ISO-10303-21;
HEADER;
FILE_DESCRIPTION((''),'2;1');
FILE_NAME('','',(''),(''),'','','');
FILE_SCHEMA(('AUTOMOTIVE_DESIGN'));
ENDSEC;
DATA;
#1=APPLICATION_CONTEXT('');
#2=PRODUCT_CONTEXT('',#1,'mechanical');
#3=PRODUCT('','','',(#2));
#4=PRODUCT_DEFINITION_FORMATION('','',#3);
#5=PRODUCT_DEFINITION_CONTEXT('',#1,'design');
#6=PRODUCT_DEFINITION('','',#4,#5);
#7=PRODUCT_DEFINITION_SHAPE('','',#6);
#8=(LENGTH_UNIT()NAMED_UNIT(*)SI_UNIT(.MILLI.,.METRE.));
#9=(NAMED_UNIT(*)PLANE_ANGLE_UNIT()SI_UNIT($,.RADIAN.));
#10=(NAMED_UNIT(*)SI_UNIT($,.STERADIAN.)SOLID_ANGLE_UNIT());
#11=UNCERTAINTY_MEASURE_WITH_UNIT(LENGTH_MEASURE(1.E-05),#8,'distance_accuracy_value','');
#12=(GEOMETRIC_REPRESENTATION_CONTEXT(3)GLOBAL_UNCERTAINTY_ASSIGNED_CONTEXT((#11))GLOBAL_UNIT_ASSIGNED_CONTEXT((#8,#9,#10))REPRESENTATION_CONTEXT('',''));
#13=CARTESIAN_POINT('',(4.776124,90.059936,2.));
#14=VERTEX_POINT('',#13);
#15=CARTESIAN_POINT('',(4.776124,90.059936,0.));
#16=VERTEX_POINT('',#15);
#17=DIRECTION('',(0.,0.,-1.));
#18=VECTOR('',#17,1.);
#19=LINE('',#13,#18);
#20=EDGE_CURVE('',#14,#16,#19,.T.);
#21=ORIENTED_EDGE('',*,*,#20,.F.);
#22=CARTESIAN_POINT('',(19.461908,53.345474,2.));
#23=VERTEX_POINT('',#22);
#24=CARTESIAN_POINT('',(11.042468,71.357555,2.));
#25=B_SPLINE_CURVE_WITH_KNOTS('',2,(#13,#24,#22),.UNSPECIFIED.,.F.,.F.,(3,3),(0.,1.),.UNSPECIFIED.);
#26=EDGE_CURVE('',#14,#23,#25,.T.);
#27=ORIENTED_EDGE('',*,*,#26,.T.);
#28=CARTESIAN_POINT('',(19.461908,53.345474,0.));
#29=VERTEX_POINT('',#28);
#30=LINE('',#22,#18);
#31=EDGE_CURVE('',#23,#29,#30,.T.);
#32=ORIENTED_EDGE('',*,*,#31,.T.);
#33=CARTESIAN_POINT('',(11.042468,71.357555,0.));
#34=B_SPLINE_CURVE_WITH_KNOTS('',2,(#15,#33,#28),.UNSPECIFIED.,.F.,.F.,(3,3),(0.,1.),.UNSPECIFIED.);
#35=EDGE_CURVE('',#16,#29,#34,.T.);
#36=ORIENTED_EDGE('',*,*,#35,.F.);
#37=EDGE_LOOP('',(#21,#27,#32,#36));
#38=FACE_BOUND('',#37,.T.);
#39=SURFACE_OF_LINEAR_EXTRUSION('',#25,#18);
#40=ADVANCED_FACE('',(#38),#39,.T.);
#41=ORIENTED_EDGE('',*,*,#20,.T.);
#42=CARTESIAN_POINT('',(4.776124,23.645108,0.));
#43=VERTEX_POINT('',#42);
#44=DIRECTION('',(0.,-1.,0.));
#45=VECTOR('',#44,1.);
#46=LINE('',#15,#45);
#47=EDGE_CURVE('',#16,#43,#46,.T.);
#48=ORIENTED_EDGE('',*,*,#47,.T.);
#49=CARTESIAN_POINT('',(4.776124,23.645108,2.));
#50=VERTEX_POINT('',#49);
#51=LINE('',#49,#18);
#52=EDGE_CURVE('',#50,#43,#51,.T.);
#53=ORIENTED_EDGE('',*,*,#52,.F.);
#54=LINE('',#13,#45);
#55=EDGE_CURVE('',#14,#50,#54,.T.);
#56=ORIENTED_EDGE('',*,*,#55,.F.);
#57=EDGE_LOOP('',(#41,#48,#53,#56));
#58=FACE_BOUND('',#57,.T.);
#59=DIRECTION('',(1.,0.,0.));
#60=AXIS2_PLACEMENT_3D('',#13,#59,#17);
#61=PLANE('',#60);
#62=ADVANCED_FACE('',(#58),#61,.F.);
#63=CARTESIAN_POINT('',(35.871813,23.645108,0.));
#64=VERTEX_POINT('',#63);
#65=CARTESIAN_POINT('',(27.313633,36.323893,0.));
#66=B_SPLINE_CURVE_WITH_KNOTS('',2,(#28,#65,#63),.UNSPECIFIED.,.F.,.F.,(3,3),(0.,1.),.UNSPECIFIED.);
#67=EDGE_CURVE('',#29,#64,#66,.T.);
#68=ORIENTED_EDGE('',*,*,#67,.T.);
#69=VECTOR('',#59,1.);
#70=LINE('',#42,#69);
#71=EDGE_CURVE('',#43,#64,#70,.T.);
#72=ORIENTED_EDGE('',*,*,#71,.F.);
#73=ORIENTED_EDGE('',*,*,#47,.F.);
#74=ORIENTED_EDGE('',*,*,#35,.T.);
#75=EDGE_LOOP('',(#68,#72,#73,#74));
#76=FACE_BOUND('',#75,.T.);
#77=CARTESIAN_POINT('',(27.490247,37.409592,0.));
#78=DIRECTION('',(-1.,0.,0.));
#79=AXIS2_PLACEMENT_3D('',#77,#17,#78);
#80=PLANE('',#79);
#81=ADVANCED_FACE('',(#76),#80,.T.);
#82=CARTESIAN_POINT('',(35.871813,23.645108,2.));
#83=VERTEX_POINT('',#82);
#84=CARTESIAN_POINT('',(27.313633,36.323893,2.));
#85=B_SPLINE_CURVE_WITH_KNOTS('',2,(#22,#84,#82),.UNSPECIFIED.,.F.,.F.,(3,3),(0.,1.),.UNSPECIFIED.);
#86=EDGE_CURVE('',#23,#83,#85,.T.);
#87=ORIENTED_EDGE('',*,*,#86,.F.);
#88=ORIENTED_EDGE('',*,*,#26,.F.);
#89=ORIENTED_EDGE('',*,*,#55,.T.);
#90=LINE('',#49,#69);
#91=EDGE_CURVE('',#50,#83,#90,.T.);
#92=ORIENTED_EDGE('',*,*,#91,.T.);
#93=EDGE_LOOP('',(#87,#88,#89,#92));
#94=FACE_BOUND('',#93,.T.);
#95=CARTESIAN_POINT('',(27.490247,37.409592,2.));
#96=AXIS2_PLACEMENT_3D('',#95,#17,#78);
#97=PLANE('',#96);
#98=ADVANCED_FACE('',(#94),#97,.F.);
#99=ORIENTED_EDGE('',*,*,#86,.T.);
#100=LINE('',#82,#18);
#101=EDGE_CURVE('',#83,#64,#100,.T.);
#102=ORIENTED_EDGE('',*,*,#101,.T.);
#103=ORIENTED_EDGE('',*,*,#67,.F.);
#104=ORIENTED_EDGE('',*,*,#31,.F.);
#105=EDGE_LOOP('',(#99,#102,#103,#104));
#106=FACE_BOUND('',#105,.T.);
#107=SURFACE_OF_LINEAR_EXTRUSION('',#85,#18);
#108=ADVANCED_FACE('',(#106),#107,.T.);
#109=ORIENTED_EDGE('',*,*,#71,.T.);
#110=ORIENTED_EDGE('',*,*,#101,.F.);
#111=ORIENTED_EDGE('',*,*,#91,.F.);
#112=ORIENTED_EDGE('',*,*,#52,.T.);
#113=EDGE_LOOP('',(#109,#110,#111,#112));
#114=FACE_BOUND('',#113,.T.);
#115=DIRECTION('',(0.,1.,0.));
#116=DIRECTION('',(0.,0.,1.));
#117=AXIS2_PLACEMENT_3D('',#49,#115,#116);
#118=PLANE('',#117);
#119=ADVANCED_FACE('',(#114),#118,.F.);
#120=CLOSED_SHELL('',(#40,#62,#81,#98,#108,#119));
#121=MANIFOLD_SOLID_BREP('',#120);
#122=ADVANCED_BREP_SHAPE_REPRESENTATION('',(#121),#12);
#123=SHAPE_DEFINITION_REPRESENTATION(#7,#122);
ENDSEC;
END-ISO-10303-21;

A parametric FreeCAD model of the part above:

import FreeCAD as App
import Part
import Sketcher

V = App.Vector

doc = App.newDocument("Part")
body = doc.addObject("PartDesign::Body", "Body")

# Sketch on XY plane
sketch1 = doc.addObject("Sketcher::SketchObject", "Sketch")
body.addObject(sketch1)
sketch1.AttachmentSupport = (doc.XY_Plane, [""])
sketch1.MapMode = "FlatFace"
sketch1.addGeometry([
    Part.LineSegment(V(4.776124, 90.059936, 0), V(4.776124, 23.645108, 0)),
    Part.LineSegment(V(4.776124, 23.645108, 0), V(35.871813, 23.645108, 0)),
    Part.BSplineCurve([V(19.461908, 53.345474, 0), V(27.313633, 36.323893, 0), V(35.871813, 23.645108, 0)], [3, 3], [0, 1], False, 2, [1, 1, 1], False),
    Part.BSplineCurve([V(4.776124, 90.059936, 0), V(11.042468, 71.357555, 0), V(19.461908, 53.345474, 0)], [3, 3], [0, 1], False, 2, [1, 1, 1], False),
], False)
sketch1.addConstraint([
    Sketcher.Constraint("Block", 2),
    Sketcher.Constraint("Block", 3),
    Sketcher.Constraint("Coincident", 0, 2, 1, 1),
    Sketcher.Constraint("Coincident", 1, 2, 2, 2),
    Sketcher.Constraint("Coincident", 3, 1, 0, 1),
    Sketcher.Constraint("Vertical", 0),
    Sketcher.Constraint("Horizontal", 1),
])
pad1 = doc.addObject("PartDesign::Pad", "Pad")
body.addObject(pad1)
pad1.Profile = sketch1
pad1.Length = 2

doc.recompute()
